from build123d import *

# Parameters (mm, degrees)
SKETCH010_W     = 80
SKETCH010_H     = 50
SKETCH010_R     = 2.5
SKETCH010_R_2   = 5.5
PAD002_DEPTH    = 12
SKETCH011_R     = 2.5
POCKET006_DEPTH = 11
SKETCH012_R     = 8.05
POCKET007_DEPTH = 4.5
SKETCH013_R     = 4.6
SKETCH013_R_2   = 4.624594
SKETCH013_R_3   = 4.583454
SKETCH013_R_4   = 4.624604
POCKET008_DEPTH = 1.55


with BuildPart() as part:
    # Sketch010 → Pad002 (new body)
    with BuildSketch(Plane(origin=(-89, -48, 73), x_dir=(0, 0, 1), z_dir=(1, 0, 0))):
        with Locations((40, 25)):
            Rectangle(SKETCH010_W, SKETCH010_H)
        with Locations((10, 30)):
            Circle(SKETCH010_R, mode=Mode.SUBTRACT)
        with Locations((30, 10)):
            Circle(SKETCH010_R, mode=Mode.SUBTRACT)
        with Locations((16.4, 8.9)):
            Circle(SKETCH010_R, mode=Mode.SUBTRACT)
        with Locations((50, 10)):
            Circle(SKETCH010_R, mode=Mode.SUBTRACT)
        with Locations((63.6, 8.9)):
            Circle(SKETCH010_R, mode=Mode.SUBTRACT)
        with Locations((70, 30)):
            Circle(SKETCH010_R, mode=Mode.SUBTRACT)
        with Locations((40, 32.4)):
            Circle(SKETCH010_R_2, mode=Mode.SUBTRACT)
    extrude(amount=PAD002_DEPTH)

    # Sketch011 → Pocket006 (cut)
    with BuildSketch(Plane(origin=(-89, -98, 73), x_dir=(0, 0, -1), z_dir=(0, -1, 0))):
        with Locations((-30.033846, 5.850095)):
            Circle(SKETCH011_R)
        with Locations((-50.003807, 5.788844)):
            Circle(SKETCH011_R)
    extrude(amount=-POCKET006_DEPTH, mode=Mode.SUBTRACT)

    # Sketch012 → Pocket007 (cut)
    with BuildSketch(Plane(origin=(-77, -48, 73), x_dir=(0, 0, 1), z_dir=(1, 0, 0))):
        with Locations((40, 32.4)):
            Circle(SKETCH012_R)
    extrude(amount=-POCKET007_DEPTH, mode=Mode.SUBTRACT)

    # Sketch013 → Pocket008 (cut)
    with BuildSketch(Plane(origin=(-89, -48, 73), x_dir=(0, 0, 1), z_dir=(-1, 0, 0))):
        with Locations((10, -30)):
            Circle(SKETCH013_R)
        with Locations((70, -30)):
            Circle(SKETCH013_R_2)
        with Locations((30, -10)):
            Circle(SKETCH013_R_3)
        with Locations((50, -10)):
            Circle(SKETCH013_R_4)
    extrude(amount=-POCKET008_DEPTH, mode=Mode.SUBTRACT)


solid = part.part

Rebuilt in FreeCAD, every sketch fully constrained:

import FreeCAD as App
import Part
import Sketcher

V = App.Vector


def add_polygon(sketch, points):
    """Adds a closed chain of lines whose ends are joined by coincident constraints."""
    first, n = sketch.GeometryCount, len(points)
    for a, b in zip(points, points[1:] + points[:1]):
        sketch.addGeometry(Part.LineSegment(App.Vector(*a, 0), App.Vector(*b, 0)), False)
    for i in range(n):
        sketch.addConstraint(Sketcher.Constraint("Coincident", first + i, 2, first + (i + 1) % n, 1))

doc = App.newDocument("Part")
params = doc.addObject("Spreadsheet::Sheet", "Params")
for row, (alias, value) in enumerate([
    ("sketch1_diameter", "5 mm"),
    ("sketch1_diameter2", "11 mm"),
    ("sketch1_width", "50 mm"),
    ("sketch1_height", "80 mm"),
    ("pad1_length", "12 mm"),
    ("sketch2_diameter", "5 mm"),
    ("pocket1_length", "11 mm"),
    ("sketch3_diameter", "16.1 mm"),
    ("pocket2_length", "4.5 mm"),
    ("sketch4_diameter", "9.2 mm"),
    ("pocket3_length", "1.55 mm"),
], start=1):
    params.set(f"A{row}", alias)
    params.set(f"B{row}", "=" + value)
    params.setAlias(f"B{row}", alias)

body = doc.addObject("PartDesign::Body", "Body")

# Sketch on YZ plane
sketch1 = body.newObject("Sketcher::SketchObject", "Sketch")
sketch1.AttachmentSupport = (doc.getObject("YZ_Plane"), [""])
sketch1.MapMode = "FlatFace"
sketch1.AttachmentOffset = App.Placement(V(0, 0, -89), App.Rotation())
add_polygon(sketch1, [(-98, 73), (-48, 73), (-48, 153), (-98, 153)])  # lines 0-3
sketch1.addGeometry(Part.Circle(V(-56.9, 89.4, 0), V(0, 0, 1), 2.5), False)  # 4
sketch1.addGeometry(Part.Circle(V(-58, 103, 0), V(0, 0, 1), 2.5), False)  # 5
sketch1.addGeometry(Part.Circle(V(-58, 123, 0), V(0, 0, 1), 2.5), False)  # 6
sketch1.addGeometry(Part.Circle(V(-56.9, 136.6, 0), V(0, 0, 1), 2.5), False)  # 7
sketch1.addGeometry(Part.Circle(V(-78, 83, 0), V(0, 0, 1), 2.5), False)  # 8
sketch1.addGeometry(Part.Circle(V(-78, 143, 0), V(0, 0, 1), 2.5), False)  # 9
sketch1.addGeometry(Part.Circle(V(-80.4, 113, 0), V(0, 0, 1), 5.5), False)  # 10
sketch1.addConstraint([
    Sketcher.Constraint("Horizontal", 0),
    Sketcher.Constraint("Vertical", 1),
    Sketcher.Constraint("Horizontal", 2),
    Sketcher.Constraint("Vertical", 3),
    Sketcher.Constraint("Equal", 4, 5),
    Sketcher.Constraint("Equal", 5, 6),
    Sketcher.Constraint("Equal", 6, 7),
    Sketcher.Constraint("Equal", 7, 8),
    Sketcher.Constraint("Equal", 8, 9),
    Sketcher.Constraint("Vertical", 5, 3, 6, 3),
    Sketcher.Constraint("Vertical", 4, 3, 7, 3),
    Sketcher.Constraint("Vertical", 8, 3, 9, 3),
    Sketcher.Constraint("Diameter", 4, 5.0),
    Sketcher.Constraint("Diameter", 10, 11.0),
    Sketcher.Constraint("DistanceX", 0, 1, 0, 2, 50.0),
    Sketcher.Constraint("DistanceY", 1, 1, 1, 2, 80.0),
    Sketcher.Constraint("DistanceX", 5, 3, -1, 1, 58.0),
    Sketcher.Constraint("DistanceY", -1, 1, 5, 3, 103.0),
    Sketcher.Constraint("DistanceY", -1, 1, 6, 3, 123.0),
    Sketcher.Constraint("DistanceX", 8, 3, -1, 1, 78.0),
    Sketcher.Constraint("DistanceY", -1, 1, 8, 3, 83.0),
    Sketcher.Constraint("DistanceY", -1, 1, 9, 3, 143.0),
    Sketcher.Constraint("DistanceY", -1, 1, 10, 3, 113.0),
    Sketcher.Constraint("DistanceX", 0, 2, -1, 1, 48.0),
    Sketcher.Constraint("DistanceY", -1, 1, 0, 2, 73.0),
    Sketcher.Constraint("DistanceX", 4, 3, -1, 1, 56.9),
    Sketcher.Constraint("DistanceY", -1, 1, 4, 3, 89.4),
    Sketcher.Constraint("DistanceY", -1, 1, 7, 3, 136.6),
    Sketcher.Constraint("DistanceX", 10, 3, -1, 1, 80.4),
])
sketch1.setExpression("Constraints[16]", "Params.sketch1_diameter")
sketch1.setExpression("Constraints[17]", "Params.sketch1_diameter2")
sketch1.setExpression("Constraints[18]", "Params.sketch1_width")
sketch1.setExpression("Constraints[19]", "Params.sketch1_height")
pad1 = body.newObject("PartDesign::Pad", "Pad")
pad1.Profile = sketch1
pad1.setExpression("Length", "Params.pad1_length")

# Sketch on XZ plane
sketch2 = body.newObject("Sketcher::SketchObject", "Sketch001")
sketch2.AttachmentSupport = (doc.getObject("XZ_Plane"), [""])
sketch2.MapMode = "FlatFace"
sketch2.AttachmentOffset = App.Placement(V(0, 0, 98), App.Rotation())
sketch2.addGeometry([
    Part.Circle(V(-83.1, 103, 0), V(0, 0, 1), 2.5),
    Part.Circle(V(-83.2, 123, 0), V(0, 0, 1), 2.5),
], False)
sketch2.addConstraint([
    Sketcher.Constraint("Equal", 0, 1),
    Sketcher.Constraint("Diameter", 0, 5.0),
    Sketcher.Constraint("DistanceX", 1, 3, 0, 3, 0.061251),
    Sketcher.Constraint("DistanceY", 0, 3, 1, 3, 19.969961),
    Sketcher.Constraint("DistanceX", 0, 3, -1, 1, 83.149905),
    Sketcher.Constraint("DistanceY", -1, 1, 0, 3, 103.033846),
])
sketch2.setExpression("Constraints[1]", "Params.sketch2_diameter")
pocket1 = body.newObject("PartDesign::Pocket", "Pocket")
pocket1.Profile = sketch2
pocket1.setExpression("Length", "Params.pocket1_length")

# Sketch on YZ plane
sketch3 = body.newObject("Sketcher::SketchObject", "Sketch002")
sketch3.AttachmentSupport = (doc.getObject("YZ_Plane"), [""])
sketch3.MapMode = "FlatFace"
sketch3.AttachmentOffset = App.Placement(V(0, 0, -77), App.Rotation())
sketch3.addGeometry(Part.Circle(V(-80, 113, 0), V(0, 0, 1), 8), False)
sketch3.addConstraint([
    Sketcher.Constraint("Diameter", 0, 16.1),
    Sketcher.Constraint("DistanceY", -1, 1, 0, 3, 113.0),
    Sketcher.Constraint("DistanceX", 0, 3, -1, 1, 80.4),
])
sketch3.setExpression("Constraints[0]", "Params.sketch3_diameter")
pocket2 = body.newObject("PartDesign::Pocket", "Pocket001")
pocket2.Profile = sketch3
pocket2.setExpression("Length", "Params.pocket2_length")

# Sketch on YZ plane
sketch4 = body.newObject("Sketcher::SketchObject", "Sketch003")
sketch4.AttachmentSupport = (doc.getObject("YZ_Plane"), [""])
sketch4.MapMode = "FlatFace"
sketch4.AttachmentOffset = App.Placement(V(0, 0, -89), App.Rotation())
sketch4.addGeometry([
    Part.Circle(V(-78, 83, 0), V(0, 0, 1), 4.6),
    Part.Circle(V(-78, 143, 0), V(0, 0, 1), 4.6),
    Part.Circle(V(-58, 103, 0), V(0, 0, 1), 4.6),
    Part.Circle(V(-58, 123, 0), V(0, 0, 1), 4.6),
], False)
sketch4.addConstraint([
    Sketcher.Constraint("Vertical", 0, 3, 1, 3),
    Sketcher.Constraint("Vertical", 2, 3, 3, 3),
    Sketcher.Constraint("Diameter", 0, 9.2),
    Sketcher.Constraint("DistanceX", 0, 3, -1, 1, 78.0),
    Sketcher.Constraint("DistanceY", -1, 1, 0, 3, 83.0),
    Sketcher.Constraint("DistanceY", -1, 1, 1, 3, 143.0),
    Sketcher.Constraint("DistanceX", 2, 3, -1, 1, 58.0),
    Sketcher.Constraint("DistanceY", -1, 1, 2, 3, 103.0),
    Sketcher.Constraint("DistanceY", -1, 1, 3, 3, 123.0),
    Sketcher.Constraint("Diameter", 1, 9.249188),
    Sketcher.Constraint("Diameter", 2, 9.166908),
    Sketcher.Constraint("Diameter", 3, 9.249208),
])
sketch4.setExpression("Constraints[2]", "Params.sketch4_diameter")
pocket3 = body.newObject("PartDesign::Pocket", "Pocket002")
pocket3.Profile = sketch4
pocket3.setExpression("Length", "Params.pocket3_length")
pocket3.Reversed = True

doc.recompute()
